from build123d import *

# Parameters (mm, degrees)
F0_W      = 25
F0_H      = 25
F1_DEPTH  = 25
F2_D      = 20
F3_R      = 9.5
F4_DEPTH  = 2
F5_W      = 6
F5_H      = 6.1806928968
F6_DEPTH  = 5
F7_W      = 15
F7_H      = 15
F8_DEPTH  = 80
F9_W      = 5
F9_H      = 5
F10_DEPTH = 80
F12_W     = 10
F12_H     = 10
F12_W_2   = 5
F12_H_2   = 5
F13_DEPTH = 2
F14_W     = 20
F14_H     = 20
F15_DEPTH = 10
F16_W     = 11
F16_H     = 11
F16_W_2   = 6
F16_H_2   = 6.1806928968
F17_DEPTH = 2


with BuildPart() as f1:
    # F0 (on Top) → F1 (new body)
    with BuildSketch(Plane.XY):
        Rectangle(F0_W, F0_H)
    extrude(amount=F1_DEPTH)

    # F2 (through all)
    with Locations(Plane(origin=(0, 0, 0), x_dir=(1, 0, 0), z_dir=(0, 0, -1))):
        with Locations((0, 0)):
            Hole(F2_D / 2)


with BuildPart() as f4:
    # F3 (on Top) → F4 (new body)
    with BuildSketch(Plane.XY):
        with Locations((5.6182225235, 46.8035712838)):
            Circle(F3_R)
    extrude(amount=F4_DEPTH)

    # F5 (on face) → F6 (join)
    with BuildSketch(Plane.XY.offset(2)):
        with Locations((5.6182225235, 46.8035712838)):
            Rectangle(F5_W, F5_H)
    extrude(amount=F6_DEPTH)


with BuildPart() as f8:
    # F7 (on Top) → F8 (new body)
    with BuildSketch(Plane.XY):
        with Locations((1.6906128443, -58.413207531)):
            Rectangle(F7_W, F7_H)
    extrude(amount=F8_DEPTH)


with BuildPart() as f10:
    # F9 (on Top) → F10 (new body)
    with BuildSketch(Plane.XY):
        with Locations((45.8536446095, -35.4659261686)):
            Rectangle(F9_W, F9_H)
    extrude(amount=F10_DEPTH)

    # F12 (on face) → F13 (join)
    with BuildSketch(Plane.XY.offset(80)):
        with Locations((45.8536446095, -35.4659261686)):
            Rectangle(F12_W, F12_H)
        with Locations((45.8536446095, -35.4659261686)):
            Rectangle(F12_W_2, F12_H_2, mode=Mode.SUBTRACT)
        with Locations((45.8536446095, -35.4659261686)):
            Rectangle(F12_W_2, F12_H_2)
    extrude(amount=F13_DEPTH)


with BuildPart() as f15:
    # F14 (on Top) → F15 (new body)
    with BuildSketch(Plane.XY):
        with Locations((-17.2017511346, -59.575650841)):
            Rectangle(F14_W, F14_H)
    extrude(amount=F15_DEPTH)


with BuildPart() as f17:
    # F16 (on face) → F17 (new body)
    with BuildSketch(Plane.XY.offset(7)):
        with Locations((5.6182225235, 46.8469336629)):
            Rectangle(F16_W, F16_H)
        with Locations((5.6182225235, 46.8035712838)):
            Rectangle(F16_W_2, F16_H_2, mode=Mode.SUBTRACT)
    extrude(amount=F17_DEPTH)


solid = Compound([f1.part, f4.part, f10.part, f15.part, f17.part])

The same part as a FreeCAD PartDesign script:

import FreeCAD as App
import Part
import Sketcher

V = App.Vector


def add_polygon(sketch, points):
    """Adds a closed chain of lines whose ends are joined by coincident constraints."""
    first, n = sketch.GeometryCount, len(points)
    for a, b in zip(points, points[1:] + points[:1]):
        sketch.addGeometry(Part.LineSegment(App.Vector(*a, 0), App.Vector(*b, 0)), False)
    for i in range(n):
        sketch.addConstraint(Sketcher.Constraint("Coincident", first + i, 2, first + (i + 1) % n, 1))

doc = App.newDocument("Part")
body = doc.addObject("PartDesign::Body", "Body")

# Sketch on XY plane
sketch1 = body.newObject("Sketcher::SketchObject", "Sketch")
sketch1.AttachmentSupport = (doc.getObject("XY_Plane"), [""])
sketch1.MapMode = "FlatFace"
add_polygon(sketch1, [(-12.5, 12.5), (-12.5, -12.5), (12.5, -12.5), (12.5, 12.5)])  # lines 0-3
sketch1.addConstraint([
    Sketcher.Constraint("Vertical", 0),
    Sketcher.Constraint("Horizontal", 1),
    Sketcher.Constraint("Vertical", 2),
    Sketcher.Constraint("Horizontal", 3),
    Sketcher.Constraint("Symmetric", 0, 2, 2, 2, -1, 1),
    Sketcher.Constraint("Equal", 3, 0),
    Sketcher.Constraint("DistanceX", 1, 1, 1, 2, 25.0),
])
pad1 = body.newObject("PartDesign::Pad", "Pad")
pad1.Profile = sketch1
pad1.Length = 25

# Sketch on XY plane
sketch2 = body.newObject("Sketcher::SketchObject", "Sketch001")
sketch2.AttachmentSupport = (doc.getObject("XY_Plane"), [""])
sketch2.MapMode = "FlatFace"
sketch2.addGeometry(Part.Circle(V(0, 0, 0), V(0, 0, 1), 10), False)
sketch2.addConstraint([
    Sketcher.Constraint("Coincident", 0, 3, -1, 1),
    Sketcher.Constraint("Diameter", 0, 20.0),
])
doc.recompute()
hole = body.newObject("PartDesign::Hole", "Hole")
hole.Profile = sketch2
hole.ThreadType = "None"
hole.Diameter = 20
hole.DepthType = "ThroughAll"
hole.Reversed = True
body2 = doc.addObject("PartDesign::Body", "Body001")

# Sketch on XY plane
sketch3 = body2.newObject("Sketcher::SketchObject", "Sketch002")
sketch3.AttachmentSupport = (doc.getObject("XY_Plane001"), [""])
sketch3.MapMode = "FlatFace"
sketch3.addGeometry(Part.Circle(V(5.618223, 46.803571, 0), V(0, 0, 1), 9.5), False)
sketch3.addConstraint([
    Sketcher.Constraint("Diameter", 0, 19.0),
    Sketcher.Constraint("DistanceY", -1, 1, 0, 3, 46.803571),
    Sketcher.Constraint("DistanceX", -1, 1, 0, 3, 5.618223),
])
pad2 = body2.newObject("PartDesign::Pad", "Pad001")
pad2.Profile = sketch3
pad2.Length = 2

# Sketch on XY plane
sketch4 = body2.newObject("Sketcher::SketchObject", "Sketch003")
sketch4.AttachmentSupport = (doc.getObject("XY_Plane001"), [""])
sketch4.MapMode = "FlatFace"
sketch4.AttachmentOffset = App.Placement(V(0, 0, 2), App.Rotation())
add_polygon(sketch4, [(2.618223, 49.893918), (2.618223, 43.713225), (8.618223, 43.713225), (8.618223, 49.893918)])  # lines 0-3
sketch4.addConstraint([
    Sketcher.Constraint("Vertical", 0),
    Sketcher.Constraint("Horizontal", 1),
    Sketcher.Constraint("Vertical", 2),
    Sketcher.Constraint("Horizontal", 3),
    Sketcher.Constraint("DistanceX", 1, 1, 1, 2, 6.0),
    Sketcher.Constraint("DistanceY", 0, 2, 0, 1, 6.180693),
    Sketcher.Constraint("DistanceX", -1, 1, 0, 2, 2.618223),
    Sketcher.Constraint("DistanceY", -1, 1, 0, 2, 43.713225),
])
pad3 = body2.newObject("PartDesign::Pad", "Pad002")
pad3.Profile = sketch4
pad3.Length = 5
body3 = doc.addObject("PartDesign::Body", "Body002")

# Sketch on XY plane
sketch5 = body3.newObject("Sketcher::SketchObject", "Sketch004")
sketch5.AttachmentSupport = (doc.getObject("XY_Plane002"), [""])
sketch5.MapMode = "FlatFace"
add_polygon(sketch5, [(-5.809387, -50.913208), (-5.809387, -65.913208), (9.190613, -65.913208), (9.190613, -50.913208)])  # lines 0-3
sketch5.addConstraint([
    Sketcher.Constraint("Vertical", 0),
    Sketcher.Constraint("Horizontal", 1),
    Sketcher.Constraint("Vertical", 2),
    Sketcher.Constraint("Horizontal", 3),
    Sketcher.Constraint("Equal", 3, 0),
    Sketcher.Constraint("DistanceX", 1, 1, 1, 2, 15.0),
    Sketcher.Constraint("DistanceX", 0, 2, -1, 1, 5.809387),
    Sketcher.Constraint("DistanceY", 0, 2, -1, 1, 65.913208),
])
pad4 = body3.newObject("PartDesign::Pad", "Pad003")
pad4.Profile = sketch5
pad4.Length = 80
body4 = doc.addObject("PartDesign::Body", "Body003")

# Sketch on XY plane
sketch6 = body4.newObject("Sketcher::SketchObject", "Sketch005")
sketch6.AttachmentSupport = (doc.getObject("XY_Plane003"), [""])
sketch6.MapMode = "FlatFace"
add_polygon(sketch6, [(43.353645, -32.965926), (43.353645, -37.965926), (48.353645, -37.965926), (48.353645, -32.965926)])  # lines 0-3
sketch6.addConstraint([
    Sketcher.Constraint("Vertical", 0),
    Sketcher.Constraint("Horizontal", 1),
    Sketcher.Constraint("Vertical", 2),
    Sketcher.Constraint("Horizontal", 3),
    Sketcher.Constraint("Equal", 3, 0),
    Sketcher.Constraint("DistanceX", 1, 1, 1, 2, 5.0),
    Sketcher.Constraint("DistanceX", -1, 1, 0, 2, 43.353645),
    Sketcher.Constraint("DistanceY", 0, 2, -1, 1, 37.965926),
])
pad5 = body4.newObject("PartDesign::Pad", "Pad004")
pad5.Profile = sketch6
pad5.Length = 80

# Sketch on XY plane
sketch7 = body4.newObject("Sketcher::SketchObject", "Sketch006")
sketch7.AttachmentSupport = (doc.getObject("XY_Plane003"), [""])
sketch7.MapMode = "FlatFace"
sketch7.AttachmentOffset = App.Placement(V(0, 0, 80), App.Rotation())
add_polygon(sketch7, [(40.853645, -30.465926), (40.853645, -40.465926), (50.853645, -40.465926), (50.853645, -30.465926)])  # lines 0-3
sketch7.addConstraint([
    Sketcher.Constraint("Vertical", 0),
    Sketcher.Constraint("Horizontal", 1),
    Sketcher.Constraint("Vertical", 2),
    Sketcher.Constraint("Horizontal", 3),
    Sketcher.Constraint("Equal", 3, 0),
    Sketcher.Constraint("DistanceX", 1, 1, 1, 2, 10.0),
    Sketcher.Constraint("DistanceX", -1, 1, 0, 2, 40.853645),
    Sketcher.Constraint("DistanceY", 0, 2, -1, 1, 40.465926),
])
pad6 = body4.newObject("PartDesign::Pad", "Pad005")
pad6.Profile = sketch7
pad6.Length = 2
body5 = doc.addObject("PartDesign::Body", "Body004")

# Sketch on XY plane
sketch8 = body5.newObject("Sketcher::SketchObject", "Sketch007")
sketch8.AttachmentSupport = (doc.getObject("XY_Plane004"), [""])
sketch8.MapMode = "FlatFace"
add_polygon(sketch8, [(-27.201751, -49.575651), (-27.201751, -69.575651), (-7.201751, -69.575651), (-7.201751, -49.575651)])  # lines 0-3
sketch8.addConstraint([
    Sketcher.Constraint("Vertical", 0),
    Sketcher.Constraint("Horizontal", 1),
    Sketcher.Constraint("Vertical", 2),
    Sketcher.Constraint("Horizontal", 3),
    Sketcher.Constraint("Equal", 3, 0),
    Sketcher.Constraint("DistanceX", 1, 1, 1, 2, 20.0),
    Sketcher.Constraint("DistanceX", 0, 2, -1, 1, 27.201751),
    Sketcher.Constraint("DistanceY", 0, 2, -1, 1, 69.575651),
])
pad7 = body5.newObject("PartDesign::Pad", "Pad006")
pad7.Profile = sketch8
pad7.Length = 10
body6 = doc.addObject("PartDesign::Body", "Body005")

# Sketch on XY plane
sketch9 = body6.newObject("Sketcher::SketchObject", "Sketch008")
sketch9.AttachmentSupport = (doc.getObject("XY_Plane005"), [""])
sketch9.MapMode = "FlatFace"
sketch9.AttachmentOffset = App.Placement(V(0, 0, 7), App.Rotation())
add_polygon(sketch9, [(0.118223, 52.346934), (0.118223, 41.346934), (11.118223, 41.346934), (11.118223, 52.346934)])  # lines 0-3
add_polygon(sketch9, [(8.618223, 43.713225), (2.618223, 43.713225), (2.618223, 49.893918), (8.618223, 49.893918)])  # lines 4-7
sketch9.addConstraint([
    Sketcher.Constraint("Vertical", 0),
    Sketcher.Constraint("Horizontal", 1),
    Sketcher.Constraint("Vertical", 2),
    Sketcher.Constraint("Horizontal", 3),
    Sketcher.Constraint("Horizontal", 4),
    Sketcher.Constraint("Vertical", 5),
    Sketcher.Constraint("Horizontal", 6),
    Sketcher.Constraint("Vertical", 7),
    Sketcher.Constraint("Equal", 3, 0),
    Sketcher.Constraint("DistanceX", 1, 1, 1, 2, 11.0),
    Sketcher.Constraint("DistanceX", 4, 2, 4, 1, 6.0),
    Sketcher.Constraint("DistanceX", 0, 2, 4, 2, 2.5),
    Sketcher.Constraint("DistanceY", 5, 1, 5, 2, 6.180693),
    Sketcher.Constraint("DistanceY", 0, 2, 4, 2, 2.366291),
    Sketcher.Constraint("DistanceX", -1, 1, 0, 2, 0.118223),
    Sketcher.Constraint("DistanceY", -1, 1, 0, 2, 41.346934),
])
pad8 = body6.newObject("PartDesign::Pad", "Pad007")
pad8.Profile = sketch9
pad8.Length = 2
body3.Visibility = False

doc.recompute()
